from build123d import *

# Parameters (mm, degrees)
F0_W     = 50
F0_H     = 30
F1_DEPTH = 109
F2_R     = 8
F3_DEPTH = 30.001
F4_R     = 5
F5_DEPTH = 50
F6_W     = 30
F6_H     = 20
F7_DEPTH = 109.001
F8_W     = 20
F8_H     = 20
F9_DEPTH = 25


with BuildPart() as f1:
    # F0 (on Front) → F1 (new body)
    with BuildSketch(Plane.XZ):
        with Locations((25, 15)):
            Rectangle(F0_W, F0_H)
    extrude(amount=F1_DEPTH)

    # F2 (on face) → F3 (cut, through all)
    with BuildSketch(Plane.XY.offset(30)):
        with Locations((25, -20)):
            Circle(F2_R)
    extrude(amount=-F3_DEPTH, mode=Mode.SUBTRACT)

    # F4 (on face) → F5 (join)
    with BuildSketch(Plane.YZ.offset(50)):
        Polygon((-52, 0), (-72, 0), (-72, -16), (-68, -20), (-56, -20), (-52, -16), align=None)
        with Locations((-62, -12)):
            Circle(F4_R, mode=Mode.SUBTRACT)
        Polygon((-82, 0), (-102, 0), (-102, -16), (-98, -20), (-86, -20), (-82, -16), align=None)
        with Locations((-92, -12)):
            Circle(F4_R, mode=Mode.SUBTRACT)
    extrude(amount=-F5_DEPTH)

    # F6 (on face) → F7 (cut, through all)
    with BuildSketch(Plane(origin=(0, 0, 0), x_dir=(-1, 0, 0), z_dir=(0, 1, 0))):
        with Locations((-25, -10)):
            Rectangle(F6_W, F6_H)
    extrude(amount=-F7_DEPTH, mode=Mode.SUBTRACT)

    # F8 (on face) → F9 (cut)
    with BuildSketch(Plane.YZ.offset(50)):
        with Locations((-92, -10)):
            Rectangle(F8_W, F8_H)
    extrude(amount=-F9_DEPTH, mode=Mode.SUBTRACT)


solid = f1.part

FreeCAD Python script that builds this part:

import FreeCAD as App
import Part
import Sketcher

V = App.Vector

doc = App.newDocument("Part")
body = doc.addObject("PartDesign::Body", "Body")

# Sketch on XZ plane
sketch1 = body.newObject("Sketcher::SketchObject", "Sketch")
sketch1.AttachmentSupport = (doc.getObject("XZ_Plane"), [""])
sketch1.MapMode = "FlatFace"
sketch1.addGeometry([
    Part.LineSegment(V(0, 30, 0), V(0, 0, 0)),
    Part.LineSegment(V(0, 0, 0), V(50, 0, 0)),
    Part.LineSegment(V(50, 0, 0), V(50, 30, 0)),
    Part.LineSegment(V(50, 30, 0), V(0, 30, 0)),
], False)
sketch1.addConstraint([
    Sketcher.Constraint("Coincident", 0, 2, 1, 1),
    Sketcher.Constraint("Coincident", 1, 2, 2, 1),
    Sketcher.Constraint("Coincident", 2, 2, 3, 1),
    Sketcher.Constraint("Coincident", 3, 2, 0, 1),
    Sketcher.Constraint("Vertical", 0),
    Sketcher.Constraint("Horizontal", 1),
    Sketcher.Constraint("Vertical", 2),
    Sketcher.Constraint("Horizontal", 3),
    Sketcher.Constraint("Coincident", 0, 2, -1, 1),
    Sketcher.Constraint("DistanceX", 1, 1, 1, 2, 50.0),
    Sketcher.Constraint("DistanceY", 0, 2, 0, 1, 30.0),
])
pad1 = body.newObject("PartDesign::Pad", "Pad")
pad1.Profile = sketch1
pad1.Length = 109

# Sketch on XY plane
sketch2 = body.newObject("Sketcher::SketchObject", "Sketch001")
sketch2.AttachmentSupport = (doc.getObject("XY_Plane"), [""])
sketch2.MapMode = "FlatFace"
sketch2.AttachmentOffset = App.Placement(V(0, 0, 30), App.Rotation())
sketch2.addGeometry(Part.Circle(V(25, -20, 0), V(0, 0, 1), 8), False)
sketch2.addConstraint([
    Sketcher.Constraint("Diameter", 0, 16.0),
    Sketcher.Constraint("DistanceX", -1, 1, 0, 3, 25.0),
    Sketcher.Constraint("DistanceY", 0, 3, -1, 1, 20.0),
])
pocket1 = body.newObject("PartDesign::Pocket", "Pocket")
pocket1.Profile = sketch2
pocket1.Type = "ThroughAll"

# Sketch on YZ plane
sketch3 = body.newObject("Sketcher::SketchObject", "Sketch002")
sketch3.AttachmentSupport = (doc.getObject("YZ_Plane"), [""])
sketch3.MapMode = "FlatFace"
sketch3.AttachmentOffset = App.Placement(V(0, 0, 50), App.Rotation())
sketch3.addGeometry([
    Part.LineSegment(V(-52, 0, 0), V(-72, 0, 0)),  # 0
    Part.LineSegment(V(-72, 0, 0), V(-72, -16, 0)),  # 1
    Part.LineSegment(V(-72, -16, 0), V(-68, -20, 0)),  # 2
    Part.LineSegment(V(-68, -20, 0), V(-56, -20, 0)),  # 3
    Part.LineSegment(V(-56, -20, 0), V(-52, -16, 0)),  # 4
    Part.LineSegment(V(-52, -16, 0), V(-52, 0, 0)),  # 5
    Part.Circle(V(-62, -12, 0), V(0, 0, 1), 5),  # 6
    Part.LineSegment(V(-82, 0, 0), V(-102, 0, 0)),  # 7
    Part.LineSegment(V(-102, 0, 0), V(-102, -16, 0)),  # 8
    Part.LineSegment(V(-102, -16, 0), V(-98, -20, 0)),  # 9
    Part.LineSegment(V(-98, -20, 0), V(-86, -20, 0)),  # 10
    Part.LineSegment(V(-86, -20, 0), V(-82, -16, 0)),  # 11
    Part.LineSegment(V(-82, -16, 0), V(-82, 0, 0)),  # 12
    Part.Circle(V(-92, -12, 0), V(0, 0, 1), 5),  # 13
], False)
sketch3.addConstraint([
    Sketcher.Constraint("Coincident", 0, 2, 1, 1),
    Sketcher.Constraint("Coincident", 1, 2, 2, 1),
    Sketcher.Constraint("Coincident", 2, 2, 3, 1),
    Sketcher.Constraint("Coincident", 3, 2, 4, 1),
    Sketcher.Constraint("Coincident", 4, 2, 5, 1),
    Sketcher.Constraint("Coincident", 5, 2, 0, 1),
    Sketcher.Constraint("Coincident", 7, 2, 8, 1),
    Sketcher.Constraint("Coincident", 8, 2, 9, 1),
    Sketcher.Constraint("Coincident", 9, 2, 10, 1),
    Sketcher.Constraint("Coincident", 10, 2, 11, 1),
    Sketcher.Constraint("Coincident", 11, 2, 12, 1),
    Sketcher.Constraint("Coincident", 12, 2, 7, 1),
    Sketcher.Constraint("Horizontal", 0),
    Sketcher.Constraint("Vertical", 1),
    Sketcher.Constraint("Horizontal", 3),
    Sketcher.Constraint("Vertical", 5),
    Sketcher.Constraint("Horizontal", 7),
    Sketcher.Constraint("Vertical", 8),
    Sketcher.Constraint("Horizontal", 10),
    Sketcher.Constraint("Vertical", 12),
    Sketcher.Constraint("Equal", 6, 13),
    Sketcher.Constraint("PointOnObject", 0, 2, -1),
    Sketcher.Constraint("PointOnObject", 7, 2, -1),
    Sketcher.Constraint("Perpendicular", 2, 4),
    Sketcher.Constraint("Perpendicular", 4, 9),
    Sketcher.Constraint("Perpendicular", 9, 11),
    Sketcher.Constraint("Horizontal", 6, 3, 13, 3),
    Sketcher.Constraint("Horizontal", 1, 2, 4, 2),
    Sketcher.Constraint("Horizontal", 4, 2, 8, 2),
    Sketcher.Constraint("Horizontal", 3, 2, 9, 2),
    Sketcher.Constraint("Horizontal", 8, 2, 11, 2),
    Sketcher.Constraint("Equal", 0, 7),
    Sketcher.Constraint("Equal", 2, 4),
    Sketcher.Constraint("Diameter", 6, 10.0),
    Sketcher.Constraint("DistanceX", 0, 2, 0, 1, 20.0),
    Sketcher.Constraint("DistanceX", 3, 1, 3, 2, 12.0),
    Sketcher.Constraint("DistanceY", 1, 2, 1, 1, 16.0),
    Sketcher.Constraint("DistanceX", 6, 3, -1, 1, 62.0),
    Sketcher.Constraint("DistanceY", 6, 3, -1, 1, 12.0),
    Sketcher.Constraint("DistanceX", 13, 3, -1, 1, 92.0),
    Sketcher.Constraint("DistanceX", 0, 2, -1, 1, 72.0),
    Sketcher.Constraint("DistanceX", 7, 2, -1, 1, 102.0),
])
pad2 = body.newObject("PartDesign::Pad", "Pad001")
pad2.Profile = sketch3
pad2.Length = 50
pad2.Reversed = True

# Sketch on XZ plane
sketch4 = body.newObject("Sketcher::SketchObject", "Sketch003")
sketch4.AttachmentSupport = (doc.getObject("XZ_Plane"), [""])
sketch4.MapMode = "FlatFace"
sketch4.addGeometry([
    Part.LineSegment(V(40, 0, 0), V(40, -20, 0)),
    Part.LineSegment(V(40, -20, 0), V(10, -20, 0)),
    Part.LineSegment(V(10, -20, 0), V(10, 0, 0)),
    Part.LineSegment(V(10, 0, 0), V(40, 0, 0)),
], False)
sketch4.addConstraint([
    Sketcher.Constraint("Coincident", 0, 2, 1, 1),
    Sketcher.Constraint("Coincident", 1, 2, 2, 1),
    Sketcher.Constraint("Coincident", 2, 2, 3, 1),
    Sketcher.Constraint("Coincident", 3, 2, 0, 1),
    Sketcher.Constraint("Vertical", 0),
    Sketcher.Constraint("Horizontal", 1),
    Sketcher.Constraint("Vertical", 2),
    Sketcher.Constraint("Horizontal", 3),
    Sketcher.Constraint("PointOnObject", 2, 2, -1),
    Sketcher.Constraint("DistanceX", 1, 2, 1, 1, 30.0),
    Sketcher.Constraint("DistanceY", 0, 2, 0, 1, 20.0),
    Sketcher.Constraint("DistanceX", -1, 1, 0, 2, 40.0),
])
pocket2 = body.newObject("PartDesign::Pocket", "Pocket001")
pocket2.Profile = sketch4
pocket2.Type = "ThroughAll"
pocket2.Reversed = True

# Sketch on YZ plane
sketch5 = body.newObject("Sketcher::SketchObject", "Sketch004")
sketch5.AttachmentSupport = (doc.getObject("YZ_Plane"), [""])
sketch5.MapMode = "FlatFace"
sketch5.AttachmentOffset = App.Placement(V(0, 0, 50), App.Rotation())
sketch5.addGeometry([
    Part.LineSegment(V(-102, 0, 0), V(-102, -20, 0)),
    Part.LineSegment(V(-102, -20, 0), V(-82, -20, 0)),
    Part.LineSegment(V(-82, -20, 0), V(-82, 0, 0)),
    Part.LineSegment(V(-82, 0, 0), V(-102, 0, 0)),
], False)
sketch5.addConstraint([
    Sketcher.Constraint("Coincident", 0, 2, 1, 1),
    Sketcher.Constraint("Coincident", 1, 2, 2, 1),
    Sketcher.Constraint("Coincident", 2, 2, 3, 1),
    Sketcher.Constraint("Coincident", 3, 2, 0, 1),
    Sketcher.Constraint("Vertical", 0),
    Sketcher.Constraint("Horizontal", 1),
    Sketcher.Constraint("Vertical", 2),
    Sketcher.Constraint("Horizontal", 3),
    Sketcher.Constraint("PointOnObject", 2, 2, -1),
    Sketcher.Constraint("Equal", 3, 0),
    Sketcher.Constraint("DistanceX", 1, 1, 1, 2, 20.0),
    Sketcher.Constraint("DistanceX", 0, 2, -1, 1, 102.0),
])
pocket3 = body.newObject("PartDesign::Pocket", "Pocket002")
pocket3.Profile = sketch5
pocket3.Length = 25

doc.recompute()
